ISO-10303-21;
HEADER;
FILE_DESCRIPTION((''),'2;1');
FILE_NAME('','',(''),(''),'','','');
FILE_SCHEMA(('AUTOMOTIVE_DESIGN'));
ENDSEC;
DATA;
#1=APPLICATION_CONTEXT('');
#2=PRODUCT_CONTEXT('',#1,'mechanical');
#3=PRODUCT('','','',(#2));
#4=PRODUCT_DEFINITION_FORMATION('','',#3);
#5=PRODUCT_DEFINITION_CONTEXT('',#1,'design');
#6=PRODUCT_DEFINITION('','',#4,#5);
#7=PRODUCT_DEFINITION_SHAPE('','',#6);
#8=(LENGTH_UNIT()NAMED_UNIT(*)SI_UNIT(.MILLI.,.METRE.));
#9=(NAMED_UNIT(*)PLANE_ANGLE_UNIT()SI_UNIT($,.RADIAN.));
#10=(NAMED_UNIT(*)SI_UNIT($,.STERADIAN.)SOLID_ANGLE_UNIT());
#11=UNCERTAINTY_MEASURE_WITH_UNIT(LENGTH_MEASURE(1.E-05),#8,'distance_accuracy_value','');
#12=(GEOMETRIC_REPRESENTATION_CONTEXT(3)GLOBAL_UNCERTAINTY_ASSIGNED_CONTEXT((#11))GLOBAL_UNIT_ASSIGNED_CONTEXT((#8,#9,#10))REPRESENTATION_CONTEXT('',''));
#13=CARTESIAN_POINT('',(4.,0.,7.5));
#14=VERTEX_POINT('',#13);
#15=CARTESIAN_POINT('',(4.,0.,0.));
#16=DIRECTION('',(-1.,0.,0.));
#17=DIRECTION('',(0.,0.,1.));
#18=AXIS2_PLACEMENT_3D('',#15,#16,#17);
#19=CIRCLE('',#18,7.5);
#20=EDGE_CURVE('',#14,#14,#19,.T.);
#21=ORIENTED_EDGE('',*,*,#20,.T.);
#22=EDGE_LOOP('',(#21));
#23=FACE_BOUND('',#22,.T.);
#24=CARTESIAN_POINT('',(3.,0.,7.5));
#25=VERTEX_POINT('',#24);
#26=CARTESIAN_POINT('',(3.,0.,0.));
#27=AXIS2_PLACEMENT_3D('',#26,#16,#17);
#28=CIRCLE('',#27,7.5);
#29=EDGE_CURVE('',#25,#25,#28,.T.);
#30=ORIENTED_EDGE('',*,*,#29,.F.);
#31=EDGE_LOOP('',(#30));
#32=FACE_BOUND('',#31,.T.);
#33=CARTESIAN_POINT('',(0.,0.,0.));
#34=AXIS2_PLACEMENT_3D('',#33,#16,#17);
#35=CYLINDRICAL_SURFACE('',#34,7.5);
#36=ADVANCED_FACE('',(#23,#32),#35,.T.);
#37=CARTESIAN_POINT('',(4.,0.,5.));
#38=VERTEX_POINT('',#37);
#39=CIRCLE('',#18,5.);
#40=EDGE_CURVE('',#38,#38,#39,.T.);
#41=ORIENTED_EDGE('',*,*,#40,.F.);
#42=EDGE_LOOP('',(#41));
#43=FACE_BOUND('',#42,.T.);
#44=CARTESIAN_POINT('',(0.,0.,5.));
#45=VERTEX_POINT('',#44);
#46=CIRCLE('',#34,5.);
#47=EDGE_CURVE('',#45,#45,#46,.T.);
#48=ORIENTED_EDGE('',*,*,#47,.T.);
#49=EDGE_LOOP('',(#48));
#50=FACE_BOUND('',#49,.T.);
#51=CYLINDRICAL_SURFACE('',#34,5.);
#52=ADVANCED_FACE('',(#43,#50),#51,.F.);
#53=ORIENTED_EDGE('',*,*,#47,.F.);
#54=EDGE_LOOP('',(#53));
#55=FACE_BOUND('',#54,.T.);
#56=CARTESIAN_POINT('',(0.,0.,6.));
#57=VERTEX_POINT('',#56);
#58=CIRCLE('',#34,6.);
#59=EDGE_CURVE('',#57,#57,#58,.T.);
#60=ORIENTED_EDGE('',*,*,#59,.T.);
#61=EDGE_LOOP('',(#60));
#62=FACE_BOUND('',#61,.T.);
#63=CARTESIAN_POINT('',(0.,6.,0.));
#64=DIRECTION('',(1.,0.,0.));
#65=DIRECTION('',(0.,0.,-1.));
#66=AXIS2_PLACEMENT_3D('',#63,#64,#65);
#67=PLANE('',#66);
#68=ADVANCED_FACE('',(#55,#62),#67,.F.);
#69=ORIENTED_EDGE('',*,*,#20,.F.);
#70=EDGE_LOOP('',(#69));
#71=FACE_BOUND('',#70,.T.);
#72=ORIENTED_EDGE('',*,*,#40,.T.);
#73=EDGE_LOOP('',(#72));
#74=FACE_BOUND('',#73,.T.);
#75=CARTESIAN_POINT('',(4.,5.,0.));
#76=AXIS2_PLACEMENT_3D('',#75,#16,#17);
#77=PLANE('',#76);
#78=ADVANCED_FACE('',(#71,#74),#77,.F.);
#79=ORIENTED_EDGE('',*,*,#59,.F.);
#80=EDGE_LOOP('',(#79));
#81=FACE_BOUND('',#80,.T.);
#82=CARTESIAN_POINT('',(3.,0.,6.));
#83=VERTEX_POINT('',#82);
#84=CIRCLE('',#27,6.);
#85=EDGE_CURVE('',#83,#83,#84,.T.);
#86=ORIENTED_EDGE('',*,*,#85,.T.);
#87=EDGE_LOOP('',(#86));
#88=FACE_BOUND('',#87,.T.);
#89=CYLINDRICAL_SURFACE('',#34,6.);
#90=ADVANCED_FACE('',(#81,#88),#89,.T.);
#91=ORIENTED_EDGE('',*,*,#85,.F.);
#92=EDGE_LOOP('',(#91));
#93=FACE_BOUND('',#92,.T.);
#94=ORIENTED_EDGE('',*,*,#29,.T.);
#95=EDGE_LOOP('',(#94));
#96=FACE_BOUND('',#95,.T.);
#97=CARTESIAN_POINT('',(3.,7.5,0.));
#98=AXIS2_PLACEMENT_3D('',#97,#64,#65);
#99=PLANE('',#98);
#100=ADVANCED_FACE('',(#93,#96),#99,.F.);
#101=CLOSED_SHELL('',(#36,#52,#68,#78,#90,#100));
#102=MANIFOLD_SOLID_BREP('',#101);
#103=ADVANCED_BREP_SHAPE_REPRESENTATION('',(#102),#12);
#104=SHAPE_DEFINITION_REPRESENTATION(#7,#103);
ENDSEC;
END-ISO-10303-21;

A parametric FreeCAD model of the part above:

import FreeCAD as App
import Part
import Sketcher


def add_polygon(sketch, points):
    """Adds a closed chain of lines whose ends are joined by coincident constraints."""
    first, n = sketch.GeometryCount, len(points)
    for a, b in zip(points, points[1:] + points[:1]):
        sketch.addGeometry(Part.LineSegment(App.Vector(*a, 0), App.Vector(*b, 0)), False)
    for i in range(n):
        sketch.addConstraint(Sketcher.Constraint("Coincident", first + i, 2, first + (i + 1) % n, 1))

doc = App.newDocument("Part")
body = doc.addObject("PartDesign::Body", "Body")

sketch1 = doc.addObject("Sketcher::SketchObject", "Sketch")
body.addObject(sketch1)
sketch1.AttachmentSupport = (doc.XY_Plane, [""])
sketch1.MapMode = "FlatFace"
add_polygon(sketch1, [(0, 5), (4, 5), (4, 7.5), (3, 7.5), (3, 6), (0, 6)])
sketch1.addConstraint(Sketcher.Constraint("Horizontal", 0))
sketch1.addConstraint(Sketcher.Constraint("Vertical", 1))
sketch1.addConstraint(Sketcher.Constraint("Horizontal", 2))
sketch1.addConstraint(Sketcher.Constraint("Vertical", 3))
sketch1.addConstraint(Sketcher.Constraint("Horizontal", 4))
sketch1.addConstraint(Sketcher.Constraint("Vertical", 5))
sketch1.addConstraint(Sketcher.Constraint("PointOnObject", 4, 2, -2))
sketch1.addConstraint(Sketcher.Constraint("Equal", 2, 5))
sketch1.addConstraint(Sketcher.Constraint("DistanceX", 0, 1, 0, 2, 4.0))
sketch1.addConstraint(Sketcher.Constraint("DistanceX", 2, 2, 2, 1, 1.0))
sketch1.addConstraint(Sketcher.Constraint("DistanceY", 1, 1, 1, 2, 2.5))
sketch1.addConstraint(Sketcher.Constraint("DistanceY", -1, 1, 0, 2, 5.0))
revolution = doc.addObject("PartDesign::Revolution", "Revolution")
body.addObject(revolution)
revolution.Profile = sketch1
revolution.ReferenceAxis = (sketch1, ["H_Axis"])
revolution.Angle = 360

doc.recompute()
